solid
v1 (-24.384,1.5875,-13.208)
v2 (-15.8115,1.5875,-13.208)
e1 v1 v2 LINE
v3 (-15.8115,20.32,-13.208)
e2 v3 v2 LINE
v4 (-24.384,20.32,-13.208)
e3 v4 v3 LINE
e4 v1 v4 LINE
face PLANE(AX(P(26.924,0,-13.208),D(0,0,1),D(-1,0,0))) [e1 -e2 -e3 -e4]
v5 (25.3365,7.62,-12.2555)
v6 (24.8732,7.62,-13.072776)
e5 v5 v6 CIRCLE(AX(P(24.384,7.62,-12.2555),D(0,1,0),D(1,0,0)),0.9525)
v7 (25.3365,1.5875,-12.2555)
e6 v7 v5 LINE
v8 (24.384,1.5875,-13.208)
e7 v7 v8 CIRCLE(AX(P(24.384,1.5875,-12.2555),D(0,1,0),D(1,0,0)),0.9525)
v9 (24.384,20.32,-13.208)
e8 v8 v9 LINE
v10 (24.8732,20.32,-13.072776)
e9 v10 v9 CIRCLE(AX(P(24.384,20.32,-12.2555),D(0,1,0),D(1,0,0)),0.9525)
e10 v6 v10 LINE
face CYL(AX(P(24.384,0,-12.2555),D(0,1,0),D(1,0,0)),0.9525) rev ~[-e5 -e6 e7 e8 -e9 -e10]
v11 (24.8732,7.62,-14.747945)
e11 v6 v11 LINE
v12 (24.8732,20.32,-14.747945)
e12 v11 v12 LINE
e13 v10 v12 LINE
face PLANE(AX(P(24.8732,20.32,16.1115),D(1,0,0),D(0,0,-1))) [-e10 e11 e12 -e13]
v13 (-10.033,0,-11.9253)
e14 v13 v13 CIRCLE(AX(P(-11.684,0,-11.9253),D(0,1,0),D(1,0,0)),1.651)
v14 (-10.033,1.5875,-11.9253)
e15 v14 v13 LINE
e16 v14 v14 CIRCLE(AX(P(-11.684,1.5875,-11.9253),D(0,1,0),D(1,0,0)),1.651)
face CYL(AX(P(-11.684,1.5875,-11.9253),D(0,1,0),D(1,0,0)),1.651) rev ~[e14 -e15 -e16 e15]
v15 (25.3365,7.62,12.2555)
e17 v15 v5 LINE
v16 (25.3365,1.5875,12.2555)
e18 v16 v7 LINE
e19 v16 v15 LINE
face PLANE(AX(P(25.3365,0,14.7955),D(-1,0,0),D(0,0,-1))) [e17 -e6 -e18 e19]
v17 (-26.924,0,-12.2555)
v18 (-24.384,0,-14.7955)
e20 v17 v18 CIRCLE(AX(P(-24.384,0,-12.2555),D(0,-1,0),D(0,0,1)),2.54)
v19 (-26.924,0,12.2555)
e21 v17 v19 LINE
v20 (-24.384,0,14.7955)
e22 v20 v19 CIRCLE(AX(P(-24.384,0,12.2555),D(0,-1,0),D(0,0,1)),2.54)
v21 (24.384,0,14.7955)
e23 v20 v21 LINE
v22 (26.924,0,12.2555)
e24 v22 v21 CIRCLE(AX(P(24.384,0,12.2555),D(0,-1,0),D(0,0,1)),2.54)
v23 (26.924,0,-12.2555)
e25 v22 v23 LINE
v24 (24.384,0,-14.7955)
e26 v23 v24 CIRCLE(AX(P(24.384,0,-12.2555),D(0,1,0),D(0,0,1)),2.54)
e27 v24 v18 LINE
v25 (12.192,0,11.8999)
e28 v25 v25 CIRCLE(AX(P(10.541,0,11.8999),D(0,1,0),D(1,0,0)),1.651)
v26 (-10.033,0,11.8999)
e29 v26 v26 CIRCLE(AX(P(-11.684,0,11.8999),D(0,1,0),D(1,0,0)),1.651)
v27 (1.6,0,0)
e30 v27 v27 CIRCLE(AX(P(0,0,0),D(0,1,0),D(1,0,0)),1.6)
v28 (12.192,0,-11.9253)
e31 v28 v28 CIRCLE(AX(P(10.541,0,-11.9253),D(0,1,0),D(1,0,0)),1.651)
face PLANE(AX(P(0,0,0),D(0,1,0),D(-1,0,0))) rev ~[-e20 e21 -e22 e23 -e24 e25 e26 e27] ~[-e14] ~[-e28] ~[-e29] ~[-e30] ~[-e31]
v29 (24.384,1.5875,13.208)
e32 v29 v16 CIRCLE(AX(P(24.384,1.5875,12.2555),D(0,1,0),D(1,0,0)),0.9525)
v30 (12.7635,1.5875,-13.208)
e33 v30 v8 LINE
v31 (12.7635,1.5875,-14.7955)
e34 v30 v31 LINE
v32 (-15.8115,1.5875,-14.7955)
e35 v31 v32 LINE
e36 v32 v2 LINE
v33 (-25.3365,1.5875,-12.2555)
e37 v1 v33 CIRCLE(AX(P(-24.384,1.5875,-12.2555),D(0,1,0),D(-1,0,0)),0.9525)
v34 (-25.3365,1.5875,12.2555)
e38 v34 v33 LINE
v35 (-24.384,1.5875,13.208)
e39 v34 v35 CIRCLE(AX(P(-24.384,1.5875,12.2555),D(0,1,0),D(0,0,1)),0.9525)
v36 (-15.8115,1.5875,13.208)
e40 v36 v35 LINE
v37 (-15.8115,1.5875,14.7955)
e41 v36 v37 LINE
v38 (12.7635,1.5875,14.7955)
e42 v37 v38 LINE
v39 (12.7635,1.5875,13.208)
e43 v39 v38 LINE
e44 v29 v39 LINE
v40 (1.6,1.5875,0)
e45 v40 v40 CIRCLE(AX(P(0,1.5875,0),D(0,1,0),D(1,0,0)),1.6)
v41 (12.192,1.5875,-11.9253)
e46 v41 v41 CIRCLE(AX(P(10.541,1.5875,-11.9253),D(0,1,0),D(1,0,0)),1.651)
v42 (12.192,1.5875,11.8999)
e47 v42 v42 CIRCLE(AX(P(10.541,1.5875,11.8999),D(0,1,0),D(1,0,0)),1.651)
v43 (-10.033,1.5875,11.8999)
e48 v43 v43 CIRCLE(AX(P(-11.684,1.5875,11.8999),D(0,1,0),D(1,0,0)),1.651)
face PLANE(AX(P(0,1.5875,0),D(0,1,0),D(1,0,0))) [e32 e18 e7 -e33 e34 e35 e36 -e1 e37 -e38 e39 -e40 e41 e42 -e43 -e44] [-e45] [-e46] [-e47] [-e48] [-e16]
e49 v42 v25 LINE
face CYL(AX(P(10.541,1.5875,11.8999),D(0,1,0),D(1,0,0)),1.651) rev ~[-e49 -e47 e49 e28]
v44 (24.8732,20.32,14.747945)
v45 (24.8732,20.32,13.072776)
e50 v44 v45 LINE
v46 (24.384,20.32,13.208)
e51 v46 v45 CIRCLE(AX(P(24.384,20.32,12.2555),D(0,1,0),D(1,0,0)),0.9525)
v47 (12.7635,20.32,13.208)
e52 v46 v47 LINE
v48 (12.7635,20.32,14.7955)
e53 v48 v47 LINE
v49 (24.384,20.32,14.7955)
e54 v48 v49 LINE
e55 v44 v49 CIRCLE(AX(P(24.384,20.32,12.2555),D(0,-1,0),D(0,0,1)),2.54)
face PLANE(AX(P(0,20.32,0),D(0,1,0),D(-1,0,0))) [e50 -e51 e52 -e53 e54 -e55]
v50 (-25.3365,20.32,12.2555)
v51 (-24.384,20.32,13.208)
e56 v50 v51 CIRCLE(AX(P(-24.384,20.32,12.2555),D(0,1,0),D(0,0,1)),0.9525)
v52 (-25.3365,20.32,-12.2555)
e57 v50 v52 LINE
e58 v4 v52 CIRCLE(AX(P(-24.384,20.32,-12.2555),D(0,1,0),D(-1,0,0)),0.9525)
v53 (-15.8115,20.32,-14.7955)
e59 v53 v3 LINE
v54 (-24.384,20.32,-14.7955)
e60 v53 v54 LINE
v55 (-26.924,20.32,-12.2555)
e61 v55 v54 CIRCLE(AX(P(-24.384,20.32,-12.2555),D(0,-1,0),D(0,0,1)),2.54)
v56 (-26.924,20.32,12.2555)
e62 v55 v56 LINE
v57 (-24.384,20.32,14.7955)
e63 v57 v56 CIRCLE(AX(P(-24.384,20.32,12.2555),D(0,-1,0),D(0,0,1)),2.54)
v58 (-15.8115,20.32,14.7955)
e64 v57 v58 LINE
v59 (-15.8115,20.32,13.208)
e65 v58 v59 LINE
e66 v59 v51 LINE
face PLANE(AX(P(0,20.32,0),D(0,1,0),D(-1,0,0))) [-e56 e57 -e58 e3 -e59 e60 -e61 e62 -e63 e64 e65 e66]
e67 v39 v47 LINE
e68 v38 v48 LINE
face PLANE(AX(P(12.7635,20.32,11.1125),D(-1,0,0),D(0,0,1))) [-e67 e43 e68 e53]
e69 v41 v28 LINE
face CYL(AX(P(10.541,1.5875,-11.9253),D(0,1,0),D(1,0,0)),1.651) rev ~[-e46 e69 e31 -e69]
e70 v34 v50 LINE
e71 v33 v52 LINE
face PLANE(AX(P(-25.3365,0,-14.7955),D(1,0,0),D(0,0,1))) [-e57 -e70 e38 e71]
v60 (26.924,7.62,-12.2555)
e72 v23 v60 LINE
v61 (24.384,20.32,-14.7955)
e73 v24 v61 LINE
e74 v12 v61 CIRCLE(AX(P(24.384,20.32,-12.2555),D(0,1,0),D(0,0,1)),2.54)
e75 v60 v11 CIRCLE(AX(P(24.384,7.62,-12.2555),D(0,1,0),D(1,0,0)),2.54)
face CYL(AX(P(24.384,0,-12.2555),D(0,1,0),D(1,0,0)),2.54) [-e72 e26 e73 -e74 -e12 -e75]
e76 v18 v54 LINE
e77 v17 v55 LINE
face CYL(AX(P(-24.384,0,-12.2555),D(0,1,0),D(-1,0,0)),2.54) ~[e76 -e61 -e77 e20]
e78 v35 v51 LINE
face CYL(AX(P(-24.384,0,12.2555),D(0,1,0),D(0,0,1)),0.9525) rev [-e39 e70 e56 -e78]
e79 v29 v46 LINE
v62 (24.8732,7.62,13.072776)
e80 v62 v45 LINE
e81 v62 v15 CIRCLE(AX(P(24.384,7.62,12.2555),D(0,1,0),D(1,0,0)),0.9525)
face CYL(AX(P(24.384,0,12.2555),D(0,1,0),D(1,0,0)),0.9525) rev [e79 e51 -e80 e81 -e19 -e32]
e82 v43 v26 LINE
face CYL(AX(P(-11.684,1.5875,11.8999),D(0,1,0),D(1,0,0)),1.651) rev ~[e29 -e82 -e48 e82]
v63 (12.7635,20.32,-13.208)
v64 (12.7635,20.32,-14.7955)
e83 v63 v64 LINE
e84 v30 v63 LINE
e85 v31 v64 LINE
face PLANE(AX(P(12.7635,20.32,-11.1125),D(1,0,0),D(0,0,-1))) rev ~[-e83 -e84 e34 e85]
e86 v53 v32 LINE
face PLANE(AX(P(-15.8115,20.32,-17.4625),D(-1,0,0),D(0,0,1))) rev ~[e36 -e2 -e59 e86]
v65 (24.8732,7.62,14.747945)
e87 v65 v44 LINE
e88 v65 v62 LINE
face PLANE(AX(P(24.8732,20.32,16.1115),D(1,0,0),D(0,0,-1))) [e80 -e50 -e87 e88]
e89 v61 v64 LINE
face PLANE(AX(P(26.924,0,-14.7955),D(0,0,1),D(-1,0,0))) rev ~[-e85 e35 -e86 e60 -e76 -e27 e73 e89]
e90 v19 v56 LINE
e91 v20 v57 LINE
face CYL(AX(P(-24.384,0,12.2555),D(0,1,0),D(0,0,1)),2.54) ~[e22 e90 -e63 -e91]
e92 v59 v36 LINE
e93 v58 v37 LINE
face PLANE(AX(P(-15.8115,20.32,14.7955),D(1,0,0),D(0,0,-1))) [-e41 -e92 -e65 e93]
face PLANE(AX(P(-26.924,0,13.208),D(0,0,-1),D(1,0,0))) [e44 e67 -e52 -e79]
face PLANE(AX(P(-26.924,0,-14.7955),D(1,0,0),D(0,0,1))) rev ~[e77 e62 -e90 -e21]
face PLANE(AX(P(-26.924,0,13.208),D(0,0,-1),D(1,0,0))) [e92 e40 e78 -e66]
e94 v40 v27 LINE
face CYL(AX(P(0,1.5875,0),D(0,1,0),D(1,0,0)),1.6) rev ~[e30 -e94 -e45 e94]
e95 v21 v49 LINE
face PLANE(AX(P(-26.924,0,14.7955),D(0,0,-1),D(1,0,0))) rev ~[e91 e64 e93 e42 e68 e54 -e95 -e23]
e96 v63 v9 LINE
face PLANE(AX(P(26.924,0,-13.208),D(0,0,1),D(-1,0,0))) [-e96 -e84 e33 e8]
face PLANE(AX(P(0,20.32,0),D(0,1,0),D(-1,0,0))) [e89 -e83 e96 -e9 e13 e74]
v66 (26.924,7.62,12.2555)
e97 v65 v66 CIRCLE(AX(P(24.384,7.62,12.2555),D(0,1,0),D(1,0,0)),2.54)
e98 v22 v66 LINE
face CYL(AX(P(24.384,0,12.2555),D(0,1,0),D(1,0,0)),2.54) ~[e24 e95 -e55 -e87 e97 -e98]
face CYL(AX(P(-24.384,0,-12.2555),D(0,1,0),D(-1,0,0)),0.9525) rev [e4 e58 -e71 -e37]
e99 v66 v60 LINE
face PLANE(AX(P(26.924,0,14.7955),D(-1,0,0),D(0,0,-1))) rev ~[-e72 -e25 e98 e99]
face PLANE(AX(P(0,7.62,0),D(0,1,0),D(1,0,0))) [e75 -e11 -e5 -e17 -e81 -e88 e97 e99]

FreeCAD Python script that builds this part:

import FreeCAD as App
import Part
import Sketcher

V = App.Vector
Q = App.Units.Quantity


def edges_at(feature, points):
    """Names of the edges that pass closest to the given points."""
    edges = feature.Shape.Edges
    near = lambda p: min(range(len(edges)), key=lambda i: edges[i].distToShape(Part.Vertex(*p))[0])
    return sorted({f"Edge{near(p) + 1}" for p in points})


def faces_at(feature, points):
    """Names of the faces that lie closest to the given points."""
    faces = feature.Shape.Faces
    near = lambda p: min(range(len(faces)), key=lambda i: faces[i].distToShape(Part.Vertex(*p))[0])
    return sorted({f"Face{near(p) + 1}" for p in points})

doc = App.newDocument("Part")
body = doc.addObject("PartDesign::Body", "Body")

# Sketch on XZ plane
sketch1 = doc.addObject("Sketcher::SketchObject", "Sketch")
body.addObject(sketch1)
sketch1.AttachmentSupport = (doc.XZ_Plane, [""])
sketch1.MapMode = "FlatFace"
sketch1.addGeometry([
    Part.LineSegment(V(27, 15, 0), V(27, -15, 0)),
    Part.LineSegment(V(27, -15, 0), V(-27, -15, 0)),
    Part.LineSegment(V(-27, -15, 0), V(-27, 15, 0)),
    Part.LineSegment(V(-27, 15, 0), V(27, 15, 0)),
], False)
sketch1.addConstraint([
    Sketcher.Constraint("Coincident", 0, 2, 1, 1),
    Sketcher.Constraint("Coincident", 1, 2, 2, 1),
    Sketcher.Constraint("Coincident", 2, 2, 3, 1),
    Sketcher.Constraint("Coincident", 3, 2, 0, 1),
    Sketcher.Constraint("Vertical", 0),
    Sketcher.Constraint("Horizontal", 1),
    Sketcher.Constraint("Vertical", 2),
    Sketcher.Constraint("Horizontal", 3),
    Sketcher.Constraint("Symmetric", 0, 2, 2, 2, -1, 1),
    Sketcher.Constraint("DistanceX", 1, 2, 1, 1, Q("2.12 in")),
    Sketcher.Constraint("DistanceY", 0, 2, 0, 1, Q("1.165 in")),
])
pad1 = doc.addObject("PartDesign::Pad", "Pad")
body.addObject(pad1)
pad1.Profile = sketch1
pad1.Length = Q("0.8 in")
pad1.Reversed = True
doc.recompute()

fillet = doc.addObject("PartDesign::Fillet", "Fillet")
body.addObject(fillet)
fillet.Base = (pad1, edges_at(pad1, [
    (-26.924, 10.16, 14.796),
    (26.924, 10.16, 14.796),
    (26.924, 10.16, -14.796),
    (-26.924, 10.16, -14.796),
]))
fillet.Radius = Q("0.1 in")
doc.recompute()

thickness = doc.addObject("PartDesign::Thickness", "Thickness")
body.addObject(thickness)
thickness.Base = (fillet, faces_at(fillet, [(-8.128, 20.32, -4.932)]))
thickness.Value = Q("0.0625 in")
thickness.Reversed = True
thickness.Join = "Intersection"

# Sketch on XZ plane
sketch2 = doc.addObject("Sketcher::SketchObject", "Sketch001")
body.addObject(sketch2)
sketch2.AttachmentSupport = (doc.XZ_Plane, [""])
sketch2.MapMode = "FlatFace"
sketch2.AttachmentOffset = App.Placement(V(0, 0, -0.8 * 25.4), App.Rotation())
sketch2.addGeometry([
    Part.LineSegment(V(-16, 11, 0), V(-16, 17, 0)),  # 0
    Part.LineSegment(V(-16, 17, 0), V(13, 17, 0)),  # 1
    Part.LineSegment(V(13, 17, 0), V(13, 11, 0)),  # 2
    Part.LineSegment(V(13, 11, 0), V(-16, 11, 0)),  # 3
    Part.LineSegment(V(-16, -17, 0), V(-16, -11, 0)),  # 4
    Part.LineSegment(V(-16, -11, 0), V(13, -11, 0)),  # 5
    Part.LineSegment(V(13, -11, 0), V(13, -17, 0)),  # 6
    Part.LineSegment(V(13, -17, 0), V(-16, -17, 0)),  # 7
], False)
sketch2.addConstraint([
    Sketcher.Constraint("Coincident", 0, 2, 1, 1),
    Sketcher.Constraint("Coincident", 1, 2, 2, 1),
    Sketcher.Constraint("Coincident", 2, 2, 3, 1),
    Sketcher.Constraint("Coincident", 3, 2, 0, 1),
    Sketcher.Constraint("Coincident", 4, 2, 5, 1),
    Sketcher.Constraint("Coincident", 5, 2, 6, 1),
    Sketcher.Constraint("Coincident", 6, 2, 7, 1),
    Sketcher.Constraint("Coincident", 7, 2, 4, 1),
    Sketcher.Constraint("Vertical", 0),
    Sketcher.Constraint("Horizontal", 1),
    Sketcher.Constraint("Vertical", 2),
    Sketcher.Constraint("Horizontal", 3),
    Sketcher.Constraint("Vertical", 4),
    Sketcher.Constraint("Horizontal", 5),
    Sketcher.Constraint("Vertical", 6),
    Sketcher.Constraint("Horizontal", 7),
    Sketcher.Constraint("Symmetric", 3, 2, 4, 2, -1),
    Sketcher.Constraint("Symmetric", 1, 2, 6, 2, -1),
    Sketcher.Constraint("DistanceY", 0, 1, 0, 2, Q("0.25 in")),
    Sketcher.Constraint("DistanceX", 1, 1, 1, 2, Q("1.125 in")),
    Sketcher.Constraint("DistanceY", -1, 1, 2, 2, Q("0.4375 in")),
    Sketcher.Constraint("DistanceX", 0, 2, -1, 1, Q("0.6225 in")),
])
pocket1 = doc.addObject("PartDesign::Pocket", "Pocket")
body.addObject(pocket1)
pocket1.Profile = sketch2
pocket1.Length = Q("0.7375 in")
pocket1.Reversed = True

# Sketch on XZ plane
sketch3 = doc.addObject("Sketcher::SketchObject", "Sketch002")
body.addObject(sketch3)
sketch3.AttachmentSupport = (doc.XZ_Plane, [""])
sketch3.MapMode = "FlatFace"
sketch3.AttachmentOffset = App.Placement(V(0, 0, -0.8 * 25.4), App.Rotation())
sketch3.addGeometry([
    Part.LineSegment(V(27.4, -15.6, 0), V(24.9, -15.6, 0)),
    Part.LineSegment(V(24.9, -15.6, 0), V(24.9, 16.1, 0)),
    Part.LineSegment(V(24.9, 16.1, 0), V(27.4, 16.1, 0)),
    Part.LineSegment(V(27.4, 16.1, 0), V(27.4, -15.6, 0)),
], False)
sketch3.addConstraint([
    Sketcher.Constraint("Coincident", 0, 2, 1, 1),
    Sketcher.Constraint("Coincident", 1, 2, 2, 1),
    Sketcher.Constraint("Coincident", 2, 2, 3, 1),
    Sketcher.Constraint("Coincident", 3, 2, 0, 1),
    Sketcher.Constraint("Horizontal", 0),
    Sketcher.Constraint("Vertical", 1),
    Sketcher.Constraint("Horizontal", 2),
    Sketcher.Constraint("Vertical", 3),
    Sketcher.Constraint("DistanceX", 0, 2, 0, 1, Q("0.1 in")),
    Sketcher.Constraint("DistanceY", 1, 1, 1, 2, Q("1.25 in")),
    Sketcher.Constraint("DistanceY", 0, 2, -1, 1, Q("0.6157 in")),
    Sketcher.Constraint("DistanceX", -1, 1, 0, 2, 24.8732),
])
pocket2 = doc.addObject("PartDesign::Pocket", "Pocket001")
body.addObject(pocket2)
pocket2.Profile = sketch3
pocket2.Length = Q("0.5 in")
pocket2.Reversed = True

# Sketch on XZ plane
sketch4 = doc.addObject("Sketcher::SketchObject", "Sketch003")
body.addObject(sketch4)
sketch4.AttachmentSupport = (doc.XZ_Plane, [""])
sketch4.MapMode = "FlatFace"
sketch4.AttachmentOffset = App.Placement(V(0, 0, -0.0625 * 25.4), App.Rotation())
sketch4.addGeometry([
    Part.Circle(V(-11.7, -11.9, 0), V(0, 0, 1), 1.7),  # 0
    Part.Circle(V(10.5, -11.9, 0), V(0, 0, 1), 1.7),  # 1
    Part.Circle(V(10.5, 11.9, 0), V(0, 0, 1), 1.7),  # 2
    Part.Circle(V(-11.7, 11.9, 0), V(0, 0, 1), 1.7),  # 3
    Part.Circle(V(0, 0, 0), V(0, 0, 1), 1.6),  # 4
], False)
sketch4.addConstraint([
    Sketcher.Constraint("Coincident", 4, 3, -1, 1),
    Sketcher.Constraint("Equal", 0, 1),
    Sketcher.Constraint("Equal", 1, 2),
    Sketcher.Constraint("Equal", 2, 3),
    Sketcher.Constraint("Horizontal", 0, 3, 1, 3),
    Sketcher.Constraint("Horizontal", 2, 3, 3, 3),
    Sketcher.Constraint("Vertical", 1, 3, 2, 3),
    Sketcher.Constraint("Vertical", 0, 3, 3, 3),
    Sketcher.Constraint("Diameter", 0, Q("0.13 in")),
    Sketcher.Constraint("Diameter", 4, 3.2),
    Sketcher.Constraint("DistanceX", 0, 3, 1, 3, Q("0.875 in")),
    Sketcher.Constraint("DistanceY", 1, 3, 2, 3, Q("0.938 in")),
    Sketcher.Constraint("DistanceX", 0, 3, -1, 1, Q("0.46 in")),
    Sketcher.Constraint("DistanceY", 0, 3, -1, 1, Q("0.4695 in")),
])
pocket3 = doc.addObject("PartDesign::Pocket", "Pocket002")
body.addObject(pocket3)
pocket3.Profile = sketch4
pocket3.Type = "ThroughAll"
pocket3.Reversed = True

doc.recompute()
